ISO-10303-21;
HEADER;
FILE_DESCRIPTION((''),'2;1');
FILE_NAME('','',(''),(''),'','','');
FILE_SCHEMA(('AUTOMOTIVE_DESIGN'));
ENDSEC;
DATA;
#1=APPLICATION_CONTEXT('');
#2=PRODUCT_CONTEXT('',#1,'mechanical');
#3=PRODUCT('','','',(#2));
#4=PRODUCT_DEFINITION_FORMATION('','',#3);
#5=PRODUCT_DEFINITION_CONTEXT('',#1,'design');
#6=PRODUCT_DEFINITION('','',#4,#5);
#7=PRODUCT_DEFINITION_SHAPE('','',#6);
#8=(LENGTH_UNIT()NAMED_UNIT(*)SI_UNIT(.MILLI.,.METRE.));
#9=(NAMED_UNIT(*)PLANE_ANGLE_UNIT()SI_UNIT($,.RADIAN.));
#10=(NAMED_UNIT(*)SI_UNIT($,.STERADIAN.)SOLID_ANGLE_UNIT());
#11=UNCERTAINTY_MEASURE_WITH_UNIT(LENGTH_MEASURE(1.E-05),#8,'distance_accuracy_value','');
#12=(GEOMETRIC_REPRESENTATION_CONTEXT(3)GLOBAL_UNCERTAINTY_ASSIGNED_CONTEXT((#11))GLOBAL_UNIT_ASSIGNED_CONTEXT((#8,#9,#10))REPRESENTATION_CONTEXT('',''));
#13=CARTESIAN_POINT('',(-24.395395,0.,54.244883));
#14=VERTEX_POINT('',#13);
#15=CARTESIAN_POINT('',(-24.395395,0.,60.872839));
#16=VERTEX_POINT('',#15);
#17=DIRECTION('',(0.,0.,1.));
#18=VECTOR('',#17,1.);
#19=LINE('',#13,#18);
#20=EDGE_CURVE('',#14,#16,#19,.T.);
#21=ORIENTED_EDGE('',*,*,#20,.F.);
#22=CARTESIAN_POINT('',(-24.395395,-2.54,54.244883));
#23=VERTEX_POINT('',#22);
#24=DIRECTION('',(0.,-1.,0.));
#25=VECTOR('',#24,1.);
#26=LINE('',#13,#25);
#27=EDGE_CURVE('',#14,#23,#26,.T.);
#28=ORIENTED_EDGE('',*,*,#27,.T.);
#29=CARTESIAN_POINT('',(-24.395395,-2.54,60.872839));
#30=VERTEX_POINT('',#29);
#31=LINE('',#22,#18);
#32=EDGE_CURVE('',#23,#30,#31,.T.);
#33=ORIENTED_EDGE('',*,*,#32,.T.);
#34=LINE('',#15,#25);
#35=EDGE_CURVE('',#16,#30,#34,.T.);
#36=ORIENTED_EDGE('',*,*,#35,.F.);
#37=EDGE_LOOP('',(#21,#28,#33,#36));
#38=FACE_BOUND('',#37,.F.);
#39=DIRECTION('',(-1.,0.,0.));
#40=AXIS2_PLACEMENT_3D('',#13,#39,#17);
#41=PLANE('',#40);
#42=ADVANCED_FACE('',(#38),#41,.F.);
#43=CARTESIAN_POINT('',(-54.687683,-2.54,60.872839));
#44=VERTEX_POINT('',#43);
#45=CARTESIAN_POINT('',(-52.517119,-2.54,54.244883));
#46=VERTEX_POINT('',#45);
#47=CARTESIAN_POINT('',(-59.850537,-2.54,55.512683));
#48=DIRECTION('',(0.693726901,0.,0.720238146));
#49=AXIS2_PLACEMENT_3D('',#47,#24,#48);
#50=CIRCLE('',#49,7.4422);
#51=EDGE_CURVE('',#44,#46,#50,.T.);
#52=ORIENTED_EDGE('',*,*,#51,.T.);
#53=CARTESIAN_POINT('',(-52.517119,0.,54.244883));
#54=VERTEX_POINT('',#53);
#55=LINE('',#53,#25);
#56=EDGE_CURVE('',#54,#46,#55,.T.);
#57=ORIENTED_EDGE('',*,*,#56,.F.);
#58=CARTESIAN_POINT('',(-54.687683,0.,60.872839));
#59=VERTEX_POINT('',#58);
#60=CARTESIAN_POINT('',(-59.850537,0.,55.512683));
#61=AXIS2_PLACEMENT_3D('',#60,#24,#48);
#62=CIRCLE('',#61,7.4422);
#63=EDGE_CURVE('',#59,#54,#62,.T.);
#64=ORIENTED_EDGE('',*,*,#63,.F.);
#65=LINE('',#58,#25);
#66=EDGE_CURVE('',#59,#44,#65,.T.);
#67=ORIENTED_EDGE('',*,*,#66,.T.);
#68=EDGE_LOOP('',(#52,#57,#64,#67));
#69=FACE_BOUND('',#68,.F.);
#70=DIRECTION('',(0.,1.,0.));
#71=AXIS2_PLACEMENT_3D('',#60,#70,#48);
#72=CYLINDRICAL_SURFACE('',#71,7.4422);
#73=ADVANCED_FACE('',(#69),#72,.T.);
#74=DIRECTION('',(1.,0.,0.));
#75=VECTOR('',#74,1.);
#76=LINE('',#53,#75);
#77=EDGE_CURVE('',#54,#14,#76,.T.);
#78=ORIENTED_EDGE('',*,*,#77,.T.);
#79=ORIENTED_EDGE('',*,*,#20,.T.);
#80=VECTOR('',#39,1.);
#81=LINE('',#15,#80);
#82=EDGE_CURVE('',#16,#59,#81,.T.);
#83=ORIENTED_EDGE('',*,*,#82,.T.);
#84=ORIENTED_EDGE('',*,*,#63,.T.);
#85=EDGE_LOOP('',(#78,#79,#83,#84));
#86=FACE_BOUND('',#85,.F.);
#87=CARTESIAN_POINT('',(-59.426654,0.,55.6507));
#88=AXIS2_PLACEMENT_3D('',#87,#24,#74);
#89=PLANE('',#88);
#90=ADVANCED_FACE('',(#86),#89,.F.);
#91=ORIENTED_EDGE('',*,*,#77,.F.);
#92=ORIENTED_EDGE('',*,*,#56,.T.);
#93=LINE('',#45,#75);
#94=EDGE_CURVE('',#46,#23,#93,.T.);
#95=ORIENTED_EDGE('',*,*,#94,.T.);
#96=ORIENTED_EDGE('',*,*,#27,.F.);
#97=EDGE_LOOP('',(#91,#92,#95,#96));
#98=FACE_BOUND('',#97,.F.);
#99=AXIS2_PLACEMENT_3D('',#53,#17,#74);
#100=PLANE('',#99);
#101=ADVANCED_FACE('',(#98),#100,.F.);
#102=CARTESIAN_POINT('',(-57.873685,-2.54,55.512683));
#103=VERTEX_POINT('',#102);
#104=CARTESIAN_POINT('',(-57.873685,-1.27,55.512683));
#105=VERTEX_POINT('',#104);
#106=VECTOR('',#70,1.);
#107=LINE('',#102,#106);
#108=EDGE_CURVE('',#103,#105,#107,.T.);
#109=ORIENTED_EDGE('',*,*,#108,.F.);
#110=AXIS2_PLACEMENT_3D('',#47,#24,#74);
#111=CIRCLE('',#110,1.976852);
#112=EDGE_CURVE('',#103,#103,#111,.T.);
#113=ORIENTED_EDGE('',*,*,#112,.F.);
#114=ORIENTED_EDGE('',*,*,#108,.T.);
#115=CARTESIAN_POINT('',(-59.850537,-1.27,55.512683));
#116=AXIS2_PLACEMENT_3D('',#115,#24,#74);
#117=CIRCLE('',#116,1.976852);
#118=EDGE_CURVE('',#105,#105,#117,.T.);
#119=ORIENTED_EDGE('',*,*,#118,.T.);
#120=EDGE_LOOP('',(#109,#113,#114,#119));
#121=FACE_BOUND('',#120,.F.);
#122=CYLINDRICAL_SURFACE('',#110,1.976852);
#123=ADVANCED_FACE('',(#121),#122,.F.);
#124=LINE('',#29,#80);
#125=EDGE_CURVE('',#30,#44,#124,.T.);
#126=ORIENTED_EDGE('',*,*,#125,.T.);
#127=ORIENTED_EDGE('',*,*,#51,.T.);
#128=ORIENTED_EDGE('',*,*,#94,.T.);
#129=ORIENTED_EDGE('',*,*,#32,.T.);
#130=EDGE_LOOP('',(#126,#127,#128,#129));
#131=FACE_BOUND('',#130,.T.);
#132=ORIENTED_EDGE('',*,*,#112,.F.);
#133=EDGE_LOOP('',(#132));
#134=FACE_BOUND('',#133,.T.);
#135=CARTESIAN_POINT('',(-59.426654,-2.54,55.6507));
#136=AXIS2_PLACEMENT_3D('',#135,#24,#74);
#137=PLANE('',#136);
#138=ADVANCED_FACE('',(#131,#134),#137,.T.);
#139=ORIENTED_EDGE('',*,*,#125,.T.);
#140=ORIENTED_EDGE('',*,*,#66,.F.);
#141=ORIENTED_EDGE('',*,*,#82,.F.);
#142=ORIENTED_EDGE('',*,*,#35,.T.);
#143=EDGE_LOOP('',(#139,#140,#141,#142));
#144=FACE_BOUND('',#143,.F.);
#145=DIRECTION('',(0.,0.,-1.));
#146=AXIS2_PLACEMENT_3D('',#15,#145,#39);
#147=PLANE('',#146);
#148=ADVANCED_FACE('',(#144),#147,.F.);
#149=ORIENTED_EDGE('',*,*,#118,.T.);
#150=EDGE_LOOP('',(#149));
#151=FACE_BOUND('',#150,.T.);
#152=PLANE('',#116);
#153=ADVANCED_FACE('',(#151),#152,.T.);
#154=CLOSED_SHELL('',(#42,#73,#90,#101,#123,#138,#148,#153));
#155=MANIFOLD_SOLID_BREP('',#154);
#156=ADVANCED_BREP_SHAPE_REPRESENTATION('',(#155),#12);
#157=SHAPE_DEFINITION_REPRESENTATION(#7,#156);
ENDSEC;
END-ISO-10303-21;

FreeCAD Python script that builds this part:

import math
import FreeCAD as App
import Part
import Sketcher
from FreeCAD import Vector
Q = App.Units.Quantity

doc = App.newDocument("Part")
params = doc.addObject("Spreadsheet::Sheet", "Params")
for row, (alias, value) in enumerate([
    ("sketch1_radius", "0.293 in"),
    ("pad1_length", "0.1 in"),
    ("pocket1_length", "0.05 in"),
], start=1):
    params.set(f"A{row}", alias)
    params.set(f"B{row}", "=" + value)
    params.setAlias(f"B{row}", alias)

body = doc.addObject("PartDesign::Body", "Body")

# Sketch on XZ plane
sketch1 = body.newObject("Sketcher::SketchObject", "Sketch")
sketch1.AttachmentSupport = (doc.getObject("XZ_Plane"), [""])
sketch1.MapMode = "FlatFace"
sketch1.addGeometry([
    Part.ArcOfCircle(Part.Circle(Vector(-59.850537, 55.512683, 0), Vector(0, 0, 1), 7.4422), math.radians(46.074146), math.radians(350.191667)),
    Part.LineSegment(Vector(-52.517119, 54.244883, 0), Vector(-24.395395, 54.244883, 0)),
    Part.LineSegment(Vector(-24.395395, 54.244883, 0), Vector(-24.395395, 60.872839, 0)),
    Part.LineSegment(Vector(-24.395395, 60.872839, 0), Vector(-54.687683, 60.872839, 0)),
], False)
sketch1.addConstraint([
    Sketcher.Constraint("Coincident", 0, 2, 1, 1),
    Sketcher.Constraint("Coincident", 1, 2, 2, 1),
    Sketcher.Constraint("Coincident", 2, 2, 3, 1),
    Sketcher.Constraint("Coincident", 3, 2, 0, 1),
    Sketcher.Constraint("Horizontal", 1),
    Sketcher.Constraint("Vertical", 2),
    Sketcher.Constraint("Horizontal", 3),
    Sketcher.Constraint("Radius", 0, Q("0.293 in")),
    Sketcher.Constraint("DistanceY", 0, 2, 0, 3, Q("1.2678 mm")),
    Sketcher.Constraint("DistanceX", 1, 1, 1, 2, Q("28.121724 mm")),
    Sketcher.Constraint("DistanceX", 3, 2, 3, 1, Q("30.292288 mm")),
    Sketcher.Constraint("DistanceX", 0, 2, -1, 1, Q("52.517119 mm")),
    Sketcher.Constraint("DistanceY", -1, 1, 2, 2, Q("60.872839 mm")),
])
sketch1.setExpression("Constraints[7]", "Params.sketch1_radius")
pad1 = body.newObject("PartDesign::Pad", "Pad")
pad1.Profile = sketch1
pad1.setExpression("Length", "Params.pad1_length")

# Sketch on XZ plane
sketch2 = body.newObject("Sketcher::SketchObject", "Sketch001")
sketch2.AttachmentSupport = (doc.getObject("XZ_Plane"), [""])
sketch2.MapMode = "FlatFace"
sketch2.AttachmentOffset = App.Placement(Vector(0, 0, 0.1 * 25.4), App.Rotation())
sketch2.addGeometry(Part.Circle(Vector(-59.850537, 55.512683, 0), Vector(0, 0, 1), 1.976852), False)
sketch2.addConstraint([
    Sketcher.Constraint("Diameter", 0, Q("3.953704 mm")),
    Sketcher.Constraint("DistanceX", 0, 3, -1, 1, Q("59.850537 mm")),
    Sketcher.Constraint("DistanceY", -1, 1, 0, 3, Q("55.512683 mm")),
])
pocket1 = body.newObject("PartDesign::Pocket", "Pocket")
pocket1.Profile = sketch2
pocket1.setExpression("Length", "Params.pocket1_length")

doc.recompute()
